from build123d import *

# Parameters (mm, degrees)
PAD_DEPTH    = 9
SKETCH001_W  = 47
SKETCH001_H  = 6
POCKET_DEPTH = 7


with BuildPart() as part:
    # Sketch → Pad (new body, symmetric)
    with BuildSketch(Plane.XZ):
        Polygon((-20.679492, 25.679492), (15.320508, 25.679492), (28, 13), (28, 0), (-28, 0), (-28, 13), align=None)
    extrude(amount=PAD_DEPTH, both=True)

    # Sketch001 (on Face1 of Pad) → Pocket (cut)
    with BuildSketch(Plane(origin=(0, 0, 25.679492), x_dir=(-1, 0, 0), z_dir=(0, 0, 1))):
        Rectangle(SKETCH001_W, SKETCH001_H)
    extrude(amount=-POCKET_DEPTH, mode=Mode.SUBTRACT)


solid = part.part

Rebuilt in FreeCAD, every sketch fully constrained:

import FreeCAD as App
import Part
import Sketcher
from FreeCAD import Vector
Q = App.Units.Quantity

doc = App.newDocument("Part")
params = doc.addObject("Spreadsheet::Sheet", "Params")
for row, (alias, value) in enumerate([
    ("sketch1_width", "36 mm"),
    ("sketch1_width2", "56 mm"),
    ("sketch1_height", "13 mm"),
    ("pad1_length", "18 mm"),
    ("sketch2_width", "47 mm"),
    ("sketch2_height", "6 mm"),
    ("pocket1_length", "7 mm"),
], start=1):
    params.set(f"A{row}", alias)
    params.set(f"B{row}", "=" + value)
    params.setAlias(f"B{row}", alias)

body = doc.addObject("PartDesign::Body", "Body")

sketch1 = doc.addObject("Sketcher::SketchObject", "Sketch")
body.addObject(sketch1)
sketch1.AttachmentSupport = (doc.XZ_Plane, [""])
sketch1.MapMode = "FlatFace"
sketch1.addGeometry(Part.LineSegment(Vector(15.320508, 25.679492, 0), Vector(-20.679492, 25.679492, 0)), False)
sketch1.addGeometry(Part.LineSegment(Vector(-20.679492, 25.679492, 0), Vector(-28, 13, 0)), False)
sketch1.addGeometry(Part.LineSegment(Vector(-28, 13, 0), Vector(-28, 0, 0)), False)
sketch1.addGeometry(Part.LineSegment(Vector(-28, 0, 0), Vector(28, 0, 0)), False)
sketch1.addGeometry(Part.LineSegment(Vector(28, 0, 0), Vector(28, 13, 0)), False)
sketch1.addGeometry(Part.LineSegment(Vector(28, 13, 0), Vector(15.320508, 25.679492, 0)), False)
sketch1.addConstraint(Sketcher.Constraint("Coincident", 0, 2, 1, 1))
sketch1.addConstraint(Sketcher.Constraint("Coincident", 1, 2, 2, 1))
sketch1.addConstraint(Sketcher.Constraint("Coincident", 2, 2, 3, 1))
sketch1.addConstraint(Sketcher.Constraint("Coincident", 3, 2, 4, 1))
sketch1.addConstraint(Sketcher.Constraint("Coincident", 4, 2, 5, 1))
sketch1.addConstraint(Sketcher.Constraint("Coincident", 5, 2, 0, 1))
sketch1.addConstraint(Sketcher.Constraint("Horizontal", 0))
sketch1.addConstraint(Sketcher.Constraint("Vertical", 2))
sketch1.addConstraint(Sketcher.Constraint("Horizontal", 3))
sketch1.addConstraint(Sketcher.Constraint("Vertical", 4))
sketch1.addConstraint(Sketcher.Constraint("Symmetric", 2, 2, 3, 2, -1, 1))
sketch1.addConstraint(Sketcher.Constraint("Horizontal", 1, 2, 4, 2))
sketch1.addConstraint(Sketcher.Constraint("DistanceX", 0, 2, 0, 1, Q("36 mm")))
sketch1.addConstraint(Sketcher.Constraint("DistanceX", 3, 1, 3, 2, Q("56 mm")))
sketch1.addConstraint(Sketcher.Constraint("DistanceY", 2, 2, 2, 1, Q("13 mm")))
sketch1.addConstraint(Sketcher.Constraint("Angle", 1, Q("-120 deg")))
sketch1.addConstraint(Sketcher.Constraint("Angle", 5, Q("135 deg")))
sketch1.setExpression("Constraints[12]", "Params.sketch1_width")
sketch1.setExpression("Constraints[13]", "Params.sketch1_width2")
sketch1.setExpression("Constraints[14]", "Params.sketch1_height")
pad1 = doc.addObject("PartDesign::Pad", "Pad")
body.addObject(pad1)
pad1.Profile = sketch1
pad1.setExpression("Length", "Params.pad1_length")
pad1.Midplane = True

sketch2 = doc.addObject("Sketcher::SketchObject", "Sketch001")
body.addObject(sketch2)
sketch2.AttachmentSupport = (doc.XY_Plane, [""])
sketch2.MapMode = "FlatFace"
sketch2.AttachmentOffset = App.Placement(Vector(0, 0, 25.679492), App.Rotation())
sketch2.addGeometry(Part.LineSegment(Vector(23.5, -3, 0), Vector(23.5, 3, 0)), False)
sketch2.addGeometry(Part.LineSegment(Vector(23.5, 3, 0), Vector(-23.5, 3, 0)), False)
sketch2.addGeometry(Part.LineSegment(Vector(-23.5, 3, 0), Vector(-23.5, -3, 0)), False)
sketch2.addGeometry(Part.LineSegment(Vector(-23.5, -3, 0), Vector(23.5, -3, 0)), False)
sketch2.addConstraint(Sketcher.Constraint("Coincident", 0, 2, 1, 1))
sketch2.addConstraint(Sketcher.Constraint("Coincident", 1, 2, 2, 1))
sketch2.addConstraint(Sketcher.Constraint("Coincident", 2, 2, 3, 1))
sketch2.addConstraint(Sketcher.Constraint("Coincident", 3, 2, 0, 1))
sketch2.addConstraint(Sketcher.Constraint("Vertical", 0))
sketch2.addConstraint(Sketcher.Constraint("Horizontal", 1))
sketch2.addConstraint(Sketcher.Constraint("Vertical", 2))
sketch2.addConstraint(Sketcher.Constraint("Horizontal", 3))
sketch2.addConstraint(Sketcher.Constraint("Symmetric", 0, 2, 2, 2, -1, 1))
sketch2.addConstraint(Sketcher.Constraint("DistanceX", 1, 2, 1, 1, Q("47 mm")))
sketch2.addConstraint(Sketcher.Constraint("DistanceY", 0, 1, 0, 2, Q("6 mm")))
sketch2.setExpression("Constraints[9]", "Params.sketch2_width")
sketch2.setExpression("Constraints[10]", "Params.sketch2_height")
pocket1 = doc.addObject("PartDesign::Pocket", "Pocket")
body.addObject(pocket1)
pocket1.Profile = sketch2
pocket1.setExpression("Length", "Params.pocket1_length")

doc.recompute()
